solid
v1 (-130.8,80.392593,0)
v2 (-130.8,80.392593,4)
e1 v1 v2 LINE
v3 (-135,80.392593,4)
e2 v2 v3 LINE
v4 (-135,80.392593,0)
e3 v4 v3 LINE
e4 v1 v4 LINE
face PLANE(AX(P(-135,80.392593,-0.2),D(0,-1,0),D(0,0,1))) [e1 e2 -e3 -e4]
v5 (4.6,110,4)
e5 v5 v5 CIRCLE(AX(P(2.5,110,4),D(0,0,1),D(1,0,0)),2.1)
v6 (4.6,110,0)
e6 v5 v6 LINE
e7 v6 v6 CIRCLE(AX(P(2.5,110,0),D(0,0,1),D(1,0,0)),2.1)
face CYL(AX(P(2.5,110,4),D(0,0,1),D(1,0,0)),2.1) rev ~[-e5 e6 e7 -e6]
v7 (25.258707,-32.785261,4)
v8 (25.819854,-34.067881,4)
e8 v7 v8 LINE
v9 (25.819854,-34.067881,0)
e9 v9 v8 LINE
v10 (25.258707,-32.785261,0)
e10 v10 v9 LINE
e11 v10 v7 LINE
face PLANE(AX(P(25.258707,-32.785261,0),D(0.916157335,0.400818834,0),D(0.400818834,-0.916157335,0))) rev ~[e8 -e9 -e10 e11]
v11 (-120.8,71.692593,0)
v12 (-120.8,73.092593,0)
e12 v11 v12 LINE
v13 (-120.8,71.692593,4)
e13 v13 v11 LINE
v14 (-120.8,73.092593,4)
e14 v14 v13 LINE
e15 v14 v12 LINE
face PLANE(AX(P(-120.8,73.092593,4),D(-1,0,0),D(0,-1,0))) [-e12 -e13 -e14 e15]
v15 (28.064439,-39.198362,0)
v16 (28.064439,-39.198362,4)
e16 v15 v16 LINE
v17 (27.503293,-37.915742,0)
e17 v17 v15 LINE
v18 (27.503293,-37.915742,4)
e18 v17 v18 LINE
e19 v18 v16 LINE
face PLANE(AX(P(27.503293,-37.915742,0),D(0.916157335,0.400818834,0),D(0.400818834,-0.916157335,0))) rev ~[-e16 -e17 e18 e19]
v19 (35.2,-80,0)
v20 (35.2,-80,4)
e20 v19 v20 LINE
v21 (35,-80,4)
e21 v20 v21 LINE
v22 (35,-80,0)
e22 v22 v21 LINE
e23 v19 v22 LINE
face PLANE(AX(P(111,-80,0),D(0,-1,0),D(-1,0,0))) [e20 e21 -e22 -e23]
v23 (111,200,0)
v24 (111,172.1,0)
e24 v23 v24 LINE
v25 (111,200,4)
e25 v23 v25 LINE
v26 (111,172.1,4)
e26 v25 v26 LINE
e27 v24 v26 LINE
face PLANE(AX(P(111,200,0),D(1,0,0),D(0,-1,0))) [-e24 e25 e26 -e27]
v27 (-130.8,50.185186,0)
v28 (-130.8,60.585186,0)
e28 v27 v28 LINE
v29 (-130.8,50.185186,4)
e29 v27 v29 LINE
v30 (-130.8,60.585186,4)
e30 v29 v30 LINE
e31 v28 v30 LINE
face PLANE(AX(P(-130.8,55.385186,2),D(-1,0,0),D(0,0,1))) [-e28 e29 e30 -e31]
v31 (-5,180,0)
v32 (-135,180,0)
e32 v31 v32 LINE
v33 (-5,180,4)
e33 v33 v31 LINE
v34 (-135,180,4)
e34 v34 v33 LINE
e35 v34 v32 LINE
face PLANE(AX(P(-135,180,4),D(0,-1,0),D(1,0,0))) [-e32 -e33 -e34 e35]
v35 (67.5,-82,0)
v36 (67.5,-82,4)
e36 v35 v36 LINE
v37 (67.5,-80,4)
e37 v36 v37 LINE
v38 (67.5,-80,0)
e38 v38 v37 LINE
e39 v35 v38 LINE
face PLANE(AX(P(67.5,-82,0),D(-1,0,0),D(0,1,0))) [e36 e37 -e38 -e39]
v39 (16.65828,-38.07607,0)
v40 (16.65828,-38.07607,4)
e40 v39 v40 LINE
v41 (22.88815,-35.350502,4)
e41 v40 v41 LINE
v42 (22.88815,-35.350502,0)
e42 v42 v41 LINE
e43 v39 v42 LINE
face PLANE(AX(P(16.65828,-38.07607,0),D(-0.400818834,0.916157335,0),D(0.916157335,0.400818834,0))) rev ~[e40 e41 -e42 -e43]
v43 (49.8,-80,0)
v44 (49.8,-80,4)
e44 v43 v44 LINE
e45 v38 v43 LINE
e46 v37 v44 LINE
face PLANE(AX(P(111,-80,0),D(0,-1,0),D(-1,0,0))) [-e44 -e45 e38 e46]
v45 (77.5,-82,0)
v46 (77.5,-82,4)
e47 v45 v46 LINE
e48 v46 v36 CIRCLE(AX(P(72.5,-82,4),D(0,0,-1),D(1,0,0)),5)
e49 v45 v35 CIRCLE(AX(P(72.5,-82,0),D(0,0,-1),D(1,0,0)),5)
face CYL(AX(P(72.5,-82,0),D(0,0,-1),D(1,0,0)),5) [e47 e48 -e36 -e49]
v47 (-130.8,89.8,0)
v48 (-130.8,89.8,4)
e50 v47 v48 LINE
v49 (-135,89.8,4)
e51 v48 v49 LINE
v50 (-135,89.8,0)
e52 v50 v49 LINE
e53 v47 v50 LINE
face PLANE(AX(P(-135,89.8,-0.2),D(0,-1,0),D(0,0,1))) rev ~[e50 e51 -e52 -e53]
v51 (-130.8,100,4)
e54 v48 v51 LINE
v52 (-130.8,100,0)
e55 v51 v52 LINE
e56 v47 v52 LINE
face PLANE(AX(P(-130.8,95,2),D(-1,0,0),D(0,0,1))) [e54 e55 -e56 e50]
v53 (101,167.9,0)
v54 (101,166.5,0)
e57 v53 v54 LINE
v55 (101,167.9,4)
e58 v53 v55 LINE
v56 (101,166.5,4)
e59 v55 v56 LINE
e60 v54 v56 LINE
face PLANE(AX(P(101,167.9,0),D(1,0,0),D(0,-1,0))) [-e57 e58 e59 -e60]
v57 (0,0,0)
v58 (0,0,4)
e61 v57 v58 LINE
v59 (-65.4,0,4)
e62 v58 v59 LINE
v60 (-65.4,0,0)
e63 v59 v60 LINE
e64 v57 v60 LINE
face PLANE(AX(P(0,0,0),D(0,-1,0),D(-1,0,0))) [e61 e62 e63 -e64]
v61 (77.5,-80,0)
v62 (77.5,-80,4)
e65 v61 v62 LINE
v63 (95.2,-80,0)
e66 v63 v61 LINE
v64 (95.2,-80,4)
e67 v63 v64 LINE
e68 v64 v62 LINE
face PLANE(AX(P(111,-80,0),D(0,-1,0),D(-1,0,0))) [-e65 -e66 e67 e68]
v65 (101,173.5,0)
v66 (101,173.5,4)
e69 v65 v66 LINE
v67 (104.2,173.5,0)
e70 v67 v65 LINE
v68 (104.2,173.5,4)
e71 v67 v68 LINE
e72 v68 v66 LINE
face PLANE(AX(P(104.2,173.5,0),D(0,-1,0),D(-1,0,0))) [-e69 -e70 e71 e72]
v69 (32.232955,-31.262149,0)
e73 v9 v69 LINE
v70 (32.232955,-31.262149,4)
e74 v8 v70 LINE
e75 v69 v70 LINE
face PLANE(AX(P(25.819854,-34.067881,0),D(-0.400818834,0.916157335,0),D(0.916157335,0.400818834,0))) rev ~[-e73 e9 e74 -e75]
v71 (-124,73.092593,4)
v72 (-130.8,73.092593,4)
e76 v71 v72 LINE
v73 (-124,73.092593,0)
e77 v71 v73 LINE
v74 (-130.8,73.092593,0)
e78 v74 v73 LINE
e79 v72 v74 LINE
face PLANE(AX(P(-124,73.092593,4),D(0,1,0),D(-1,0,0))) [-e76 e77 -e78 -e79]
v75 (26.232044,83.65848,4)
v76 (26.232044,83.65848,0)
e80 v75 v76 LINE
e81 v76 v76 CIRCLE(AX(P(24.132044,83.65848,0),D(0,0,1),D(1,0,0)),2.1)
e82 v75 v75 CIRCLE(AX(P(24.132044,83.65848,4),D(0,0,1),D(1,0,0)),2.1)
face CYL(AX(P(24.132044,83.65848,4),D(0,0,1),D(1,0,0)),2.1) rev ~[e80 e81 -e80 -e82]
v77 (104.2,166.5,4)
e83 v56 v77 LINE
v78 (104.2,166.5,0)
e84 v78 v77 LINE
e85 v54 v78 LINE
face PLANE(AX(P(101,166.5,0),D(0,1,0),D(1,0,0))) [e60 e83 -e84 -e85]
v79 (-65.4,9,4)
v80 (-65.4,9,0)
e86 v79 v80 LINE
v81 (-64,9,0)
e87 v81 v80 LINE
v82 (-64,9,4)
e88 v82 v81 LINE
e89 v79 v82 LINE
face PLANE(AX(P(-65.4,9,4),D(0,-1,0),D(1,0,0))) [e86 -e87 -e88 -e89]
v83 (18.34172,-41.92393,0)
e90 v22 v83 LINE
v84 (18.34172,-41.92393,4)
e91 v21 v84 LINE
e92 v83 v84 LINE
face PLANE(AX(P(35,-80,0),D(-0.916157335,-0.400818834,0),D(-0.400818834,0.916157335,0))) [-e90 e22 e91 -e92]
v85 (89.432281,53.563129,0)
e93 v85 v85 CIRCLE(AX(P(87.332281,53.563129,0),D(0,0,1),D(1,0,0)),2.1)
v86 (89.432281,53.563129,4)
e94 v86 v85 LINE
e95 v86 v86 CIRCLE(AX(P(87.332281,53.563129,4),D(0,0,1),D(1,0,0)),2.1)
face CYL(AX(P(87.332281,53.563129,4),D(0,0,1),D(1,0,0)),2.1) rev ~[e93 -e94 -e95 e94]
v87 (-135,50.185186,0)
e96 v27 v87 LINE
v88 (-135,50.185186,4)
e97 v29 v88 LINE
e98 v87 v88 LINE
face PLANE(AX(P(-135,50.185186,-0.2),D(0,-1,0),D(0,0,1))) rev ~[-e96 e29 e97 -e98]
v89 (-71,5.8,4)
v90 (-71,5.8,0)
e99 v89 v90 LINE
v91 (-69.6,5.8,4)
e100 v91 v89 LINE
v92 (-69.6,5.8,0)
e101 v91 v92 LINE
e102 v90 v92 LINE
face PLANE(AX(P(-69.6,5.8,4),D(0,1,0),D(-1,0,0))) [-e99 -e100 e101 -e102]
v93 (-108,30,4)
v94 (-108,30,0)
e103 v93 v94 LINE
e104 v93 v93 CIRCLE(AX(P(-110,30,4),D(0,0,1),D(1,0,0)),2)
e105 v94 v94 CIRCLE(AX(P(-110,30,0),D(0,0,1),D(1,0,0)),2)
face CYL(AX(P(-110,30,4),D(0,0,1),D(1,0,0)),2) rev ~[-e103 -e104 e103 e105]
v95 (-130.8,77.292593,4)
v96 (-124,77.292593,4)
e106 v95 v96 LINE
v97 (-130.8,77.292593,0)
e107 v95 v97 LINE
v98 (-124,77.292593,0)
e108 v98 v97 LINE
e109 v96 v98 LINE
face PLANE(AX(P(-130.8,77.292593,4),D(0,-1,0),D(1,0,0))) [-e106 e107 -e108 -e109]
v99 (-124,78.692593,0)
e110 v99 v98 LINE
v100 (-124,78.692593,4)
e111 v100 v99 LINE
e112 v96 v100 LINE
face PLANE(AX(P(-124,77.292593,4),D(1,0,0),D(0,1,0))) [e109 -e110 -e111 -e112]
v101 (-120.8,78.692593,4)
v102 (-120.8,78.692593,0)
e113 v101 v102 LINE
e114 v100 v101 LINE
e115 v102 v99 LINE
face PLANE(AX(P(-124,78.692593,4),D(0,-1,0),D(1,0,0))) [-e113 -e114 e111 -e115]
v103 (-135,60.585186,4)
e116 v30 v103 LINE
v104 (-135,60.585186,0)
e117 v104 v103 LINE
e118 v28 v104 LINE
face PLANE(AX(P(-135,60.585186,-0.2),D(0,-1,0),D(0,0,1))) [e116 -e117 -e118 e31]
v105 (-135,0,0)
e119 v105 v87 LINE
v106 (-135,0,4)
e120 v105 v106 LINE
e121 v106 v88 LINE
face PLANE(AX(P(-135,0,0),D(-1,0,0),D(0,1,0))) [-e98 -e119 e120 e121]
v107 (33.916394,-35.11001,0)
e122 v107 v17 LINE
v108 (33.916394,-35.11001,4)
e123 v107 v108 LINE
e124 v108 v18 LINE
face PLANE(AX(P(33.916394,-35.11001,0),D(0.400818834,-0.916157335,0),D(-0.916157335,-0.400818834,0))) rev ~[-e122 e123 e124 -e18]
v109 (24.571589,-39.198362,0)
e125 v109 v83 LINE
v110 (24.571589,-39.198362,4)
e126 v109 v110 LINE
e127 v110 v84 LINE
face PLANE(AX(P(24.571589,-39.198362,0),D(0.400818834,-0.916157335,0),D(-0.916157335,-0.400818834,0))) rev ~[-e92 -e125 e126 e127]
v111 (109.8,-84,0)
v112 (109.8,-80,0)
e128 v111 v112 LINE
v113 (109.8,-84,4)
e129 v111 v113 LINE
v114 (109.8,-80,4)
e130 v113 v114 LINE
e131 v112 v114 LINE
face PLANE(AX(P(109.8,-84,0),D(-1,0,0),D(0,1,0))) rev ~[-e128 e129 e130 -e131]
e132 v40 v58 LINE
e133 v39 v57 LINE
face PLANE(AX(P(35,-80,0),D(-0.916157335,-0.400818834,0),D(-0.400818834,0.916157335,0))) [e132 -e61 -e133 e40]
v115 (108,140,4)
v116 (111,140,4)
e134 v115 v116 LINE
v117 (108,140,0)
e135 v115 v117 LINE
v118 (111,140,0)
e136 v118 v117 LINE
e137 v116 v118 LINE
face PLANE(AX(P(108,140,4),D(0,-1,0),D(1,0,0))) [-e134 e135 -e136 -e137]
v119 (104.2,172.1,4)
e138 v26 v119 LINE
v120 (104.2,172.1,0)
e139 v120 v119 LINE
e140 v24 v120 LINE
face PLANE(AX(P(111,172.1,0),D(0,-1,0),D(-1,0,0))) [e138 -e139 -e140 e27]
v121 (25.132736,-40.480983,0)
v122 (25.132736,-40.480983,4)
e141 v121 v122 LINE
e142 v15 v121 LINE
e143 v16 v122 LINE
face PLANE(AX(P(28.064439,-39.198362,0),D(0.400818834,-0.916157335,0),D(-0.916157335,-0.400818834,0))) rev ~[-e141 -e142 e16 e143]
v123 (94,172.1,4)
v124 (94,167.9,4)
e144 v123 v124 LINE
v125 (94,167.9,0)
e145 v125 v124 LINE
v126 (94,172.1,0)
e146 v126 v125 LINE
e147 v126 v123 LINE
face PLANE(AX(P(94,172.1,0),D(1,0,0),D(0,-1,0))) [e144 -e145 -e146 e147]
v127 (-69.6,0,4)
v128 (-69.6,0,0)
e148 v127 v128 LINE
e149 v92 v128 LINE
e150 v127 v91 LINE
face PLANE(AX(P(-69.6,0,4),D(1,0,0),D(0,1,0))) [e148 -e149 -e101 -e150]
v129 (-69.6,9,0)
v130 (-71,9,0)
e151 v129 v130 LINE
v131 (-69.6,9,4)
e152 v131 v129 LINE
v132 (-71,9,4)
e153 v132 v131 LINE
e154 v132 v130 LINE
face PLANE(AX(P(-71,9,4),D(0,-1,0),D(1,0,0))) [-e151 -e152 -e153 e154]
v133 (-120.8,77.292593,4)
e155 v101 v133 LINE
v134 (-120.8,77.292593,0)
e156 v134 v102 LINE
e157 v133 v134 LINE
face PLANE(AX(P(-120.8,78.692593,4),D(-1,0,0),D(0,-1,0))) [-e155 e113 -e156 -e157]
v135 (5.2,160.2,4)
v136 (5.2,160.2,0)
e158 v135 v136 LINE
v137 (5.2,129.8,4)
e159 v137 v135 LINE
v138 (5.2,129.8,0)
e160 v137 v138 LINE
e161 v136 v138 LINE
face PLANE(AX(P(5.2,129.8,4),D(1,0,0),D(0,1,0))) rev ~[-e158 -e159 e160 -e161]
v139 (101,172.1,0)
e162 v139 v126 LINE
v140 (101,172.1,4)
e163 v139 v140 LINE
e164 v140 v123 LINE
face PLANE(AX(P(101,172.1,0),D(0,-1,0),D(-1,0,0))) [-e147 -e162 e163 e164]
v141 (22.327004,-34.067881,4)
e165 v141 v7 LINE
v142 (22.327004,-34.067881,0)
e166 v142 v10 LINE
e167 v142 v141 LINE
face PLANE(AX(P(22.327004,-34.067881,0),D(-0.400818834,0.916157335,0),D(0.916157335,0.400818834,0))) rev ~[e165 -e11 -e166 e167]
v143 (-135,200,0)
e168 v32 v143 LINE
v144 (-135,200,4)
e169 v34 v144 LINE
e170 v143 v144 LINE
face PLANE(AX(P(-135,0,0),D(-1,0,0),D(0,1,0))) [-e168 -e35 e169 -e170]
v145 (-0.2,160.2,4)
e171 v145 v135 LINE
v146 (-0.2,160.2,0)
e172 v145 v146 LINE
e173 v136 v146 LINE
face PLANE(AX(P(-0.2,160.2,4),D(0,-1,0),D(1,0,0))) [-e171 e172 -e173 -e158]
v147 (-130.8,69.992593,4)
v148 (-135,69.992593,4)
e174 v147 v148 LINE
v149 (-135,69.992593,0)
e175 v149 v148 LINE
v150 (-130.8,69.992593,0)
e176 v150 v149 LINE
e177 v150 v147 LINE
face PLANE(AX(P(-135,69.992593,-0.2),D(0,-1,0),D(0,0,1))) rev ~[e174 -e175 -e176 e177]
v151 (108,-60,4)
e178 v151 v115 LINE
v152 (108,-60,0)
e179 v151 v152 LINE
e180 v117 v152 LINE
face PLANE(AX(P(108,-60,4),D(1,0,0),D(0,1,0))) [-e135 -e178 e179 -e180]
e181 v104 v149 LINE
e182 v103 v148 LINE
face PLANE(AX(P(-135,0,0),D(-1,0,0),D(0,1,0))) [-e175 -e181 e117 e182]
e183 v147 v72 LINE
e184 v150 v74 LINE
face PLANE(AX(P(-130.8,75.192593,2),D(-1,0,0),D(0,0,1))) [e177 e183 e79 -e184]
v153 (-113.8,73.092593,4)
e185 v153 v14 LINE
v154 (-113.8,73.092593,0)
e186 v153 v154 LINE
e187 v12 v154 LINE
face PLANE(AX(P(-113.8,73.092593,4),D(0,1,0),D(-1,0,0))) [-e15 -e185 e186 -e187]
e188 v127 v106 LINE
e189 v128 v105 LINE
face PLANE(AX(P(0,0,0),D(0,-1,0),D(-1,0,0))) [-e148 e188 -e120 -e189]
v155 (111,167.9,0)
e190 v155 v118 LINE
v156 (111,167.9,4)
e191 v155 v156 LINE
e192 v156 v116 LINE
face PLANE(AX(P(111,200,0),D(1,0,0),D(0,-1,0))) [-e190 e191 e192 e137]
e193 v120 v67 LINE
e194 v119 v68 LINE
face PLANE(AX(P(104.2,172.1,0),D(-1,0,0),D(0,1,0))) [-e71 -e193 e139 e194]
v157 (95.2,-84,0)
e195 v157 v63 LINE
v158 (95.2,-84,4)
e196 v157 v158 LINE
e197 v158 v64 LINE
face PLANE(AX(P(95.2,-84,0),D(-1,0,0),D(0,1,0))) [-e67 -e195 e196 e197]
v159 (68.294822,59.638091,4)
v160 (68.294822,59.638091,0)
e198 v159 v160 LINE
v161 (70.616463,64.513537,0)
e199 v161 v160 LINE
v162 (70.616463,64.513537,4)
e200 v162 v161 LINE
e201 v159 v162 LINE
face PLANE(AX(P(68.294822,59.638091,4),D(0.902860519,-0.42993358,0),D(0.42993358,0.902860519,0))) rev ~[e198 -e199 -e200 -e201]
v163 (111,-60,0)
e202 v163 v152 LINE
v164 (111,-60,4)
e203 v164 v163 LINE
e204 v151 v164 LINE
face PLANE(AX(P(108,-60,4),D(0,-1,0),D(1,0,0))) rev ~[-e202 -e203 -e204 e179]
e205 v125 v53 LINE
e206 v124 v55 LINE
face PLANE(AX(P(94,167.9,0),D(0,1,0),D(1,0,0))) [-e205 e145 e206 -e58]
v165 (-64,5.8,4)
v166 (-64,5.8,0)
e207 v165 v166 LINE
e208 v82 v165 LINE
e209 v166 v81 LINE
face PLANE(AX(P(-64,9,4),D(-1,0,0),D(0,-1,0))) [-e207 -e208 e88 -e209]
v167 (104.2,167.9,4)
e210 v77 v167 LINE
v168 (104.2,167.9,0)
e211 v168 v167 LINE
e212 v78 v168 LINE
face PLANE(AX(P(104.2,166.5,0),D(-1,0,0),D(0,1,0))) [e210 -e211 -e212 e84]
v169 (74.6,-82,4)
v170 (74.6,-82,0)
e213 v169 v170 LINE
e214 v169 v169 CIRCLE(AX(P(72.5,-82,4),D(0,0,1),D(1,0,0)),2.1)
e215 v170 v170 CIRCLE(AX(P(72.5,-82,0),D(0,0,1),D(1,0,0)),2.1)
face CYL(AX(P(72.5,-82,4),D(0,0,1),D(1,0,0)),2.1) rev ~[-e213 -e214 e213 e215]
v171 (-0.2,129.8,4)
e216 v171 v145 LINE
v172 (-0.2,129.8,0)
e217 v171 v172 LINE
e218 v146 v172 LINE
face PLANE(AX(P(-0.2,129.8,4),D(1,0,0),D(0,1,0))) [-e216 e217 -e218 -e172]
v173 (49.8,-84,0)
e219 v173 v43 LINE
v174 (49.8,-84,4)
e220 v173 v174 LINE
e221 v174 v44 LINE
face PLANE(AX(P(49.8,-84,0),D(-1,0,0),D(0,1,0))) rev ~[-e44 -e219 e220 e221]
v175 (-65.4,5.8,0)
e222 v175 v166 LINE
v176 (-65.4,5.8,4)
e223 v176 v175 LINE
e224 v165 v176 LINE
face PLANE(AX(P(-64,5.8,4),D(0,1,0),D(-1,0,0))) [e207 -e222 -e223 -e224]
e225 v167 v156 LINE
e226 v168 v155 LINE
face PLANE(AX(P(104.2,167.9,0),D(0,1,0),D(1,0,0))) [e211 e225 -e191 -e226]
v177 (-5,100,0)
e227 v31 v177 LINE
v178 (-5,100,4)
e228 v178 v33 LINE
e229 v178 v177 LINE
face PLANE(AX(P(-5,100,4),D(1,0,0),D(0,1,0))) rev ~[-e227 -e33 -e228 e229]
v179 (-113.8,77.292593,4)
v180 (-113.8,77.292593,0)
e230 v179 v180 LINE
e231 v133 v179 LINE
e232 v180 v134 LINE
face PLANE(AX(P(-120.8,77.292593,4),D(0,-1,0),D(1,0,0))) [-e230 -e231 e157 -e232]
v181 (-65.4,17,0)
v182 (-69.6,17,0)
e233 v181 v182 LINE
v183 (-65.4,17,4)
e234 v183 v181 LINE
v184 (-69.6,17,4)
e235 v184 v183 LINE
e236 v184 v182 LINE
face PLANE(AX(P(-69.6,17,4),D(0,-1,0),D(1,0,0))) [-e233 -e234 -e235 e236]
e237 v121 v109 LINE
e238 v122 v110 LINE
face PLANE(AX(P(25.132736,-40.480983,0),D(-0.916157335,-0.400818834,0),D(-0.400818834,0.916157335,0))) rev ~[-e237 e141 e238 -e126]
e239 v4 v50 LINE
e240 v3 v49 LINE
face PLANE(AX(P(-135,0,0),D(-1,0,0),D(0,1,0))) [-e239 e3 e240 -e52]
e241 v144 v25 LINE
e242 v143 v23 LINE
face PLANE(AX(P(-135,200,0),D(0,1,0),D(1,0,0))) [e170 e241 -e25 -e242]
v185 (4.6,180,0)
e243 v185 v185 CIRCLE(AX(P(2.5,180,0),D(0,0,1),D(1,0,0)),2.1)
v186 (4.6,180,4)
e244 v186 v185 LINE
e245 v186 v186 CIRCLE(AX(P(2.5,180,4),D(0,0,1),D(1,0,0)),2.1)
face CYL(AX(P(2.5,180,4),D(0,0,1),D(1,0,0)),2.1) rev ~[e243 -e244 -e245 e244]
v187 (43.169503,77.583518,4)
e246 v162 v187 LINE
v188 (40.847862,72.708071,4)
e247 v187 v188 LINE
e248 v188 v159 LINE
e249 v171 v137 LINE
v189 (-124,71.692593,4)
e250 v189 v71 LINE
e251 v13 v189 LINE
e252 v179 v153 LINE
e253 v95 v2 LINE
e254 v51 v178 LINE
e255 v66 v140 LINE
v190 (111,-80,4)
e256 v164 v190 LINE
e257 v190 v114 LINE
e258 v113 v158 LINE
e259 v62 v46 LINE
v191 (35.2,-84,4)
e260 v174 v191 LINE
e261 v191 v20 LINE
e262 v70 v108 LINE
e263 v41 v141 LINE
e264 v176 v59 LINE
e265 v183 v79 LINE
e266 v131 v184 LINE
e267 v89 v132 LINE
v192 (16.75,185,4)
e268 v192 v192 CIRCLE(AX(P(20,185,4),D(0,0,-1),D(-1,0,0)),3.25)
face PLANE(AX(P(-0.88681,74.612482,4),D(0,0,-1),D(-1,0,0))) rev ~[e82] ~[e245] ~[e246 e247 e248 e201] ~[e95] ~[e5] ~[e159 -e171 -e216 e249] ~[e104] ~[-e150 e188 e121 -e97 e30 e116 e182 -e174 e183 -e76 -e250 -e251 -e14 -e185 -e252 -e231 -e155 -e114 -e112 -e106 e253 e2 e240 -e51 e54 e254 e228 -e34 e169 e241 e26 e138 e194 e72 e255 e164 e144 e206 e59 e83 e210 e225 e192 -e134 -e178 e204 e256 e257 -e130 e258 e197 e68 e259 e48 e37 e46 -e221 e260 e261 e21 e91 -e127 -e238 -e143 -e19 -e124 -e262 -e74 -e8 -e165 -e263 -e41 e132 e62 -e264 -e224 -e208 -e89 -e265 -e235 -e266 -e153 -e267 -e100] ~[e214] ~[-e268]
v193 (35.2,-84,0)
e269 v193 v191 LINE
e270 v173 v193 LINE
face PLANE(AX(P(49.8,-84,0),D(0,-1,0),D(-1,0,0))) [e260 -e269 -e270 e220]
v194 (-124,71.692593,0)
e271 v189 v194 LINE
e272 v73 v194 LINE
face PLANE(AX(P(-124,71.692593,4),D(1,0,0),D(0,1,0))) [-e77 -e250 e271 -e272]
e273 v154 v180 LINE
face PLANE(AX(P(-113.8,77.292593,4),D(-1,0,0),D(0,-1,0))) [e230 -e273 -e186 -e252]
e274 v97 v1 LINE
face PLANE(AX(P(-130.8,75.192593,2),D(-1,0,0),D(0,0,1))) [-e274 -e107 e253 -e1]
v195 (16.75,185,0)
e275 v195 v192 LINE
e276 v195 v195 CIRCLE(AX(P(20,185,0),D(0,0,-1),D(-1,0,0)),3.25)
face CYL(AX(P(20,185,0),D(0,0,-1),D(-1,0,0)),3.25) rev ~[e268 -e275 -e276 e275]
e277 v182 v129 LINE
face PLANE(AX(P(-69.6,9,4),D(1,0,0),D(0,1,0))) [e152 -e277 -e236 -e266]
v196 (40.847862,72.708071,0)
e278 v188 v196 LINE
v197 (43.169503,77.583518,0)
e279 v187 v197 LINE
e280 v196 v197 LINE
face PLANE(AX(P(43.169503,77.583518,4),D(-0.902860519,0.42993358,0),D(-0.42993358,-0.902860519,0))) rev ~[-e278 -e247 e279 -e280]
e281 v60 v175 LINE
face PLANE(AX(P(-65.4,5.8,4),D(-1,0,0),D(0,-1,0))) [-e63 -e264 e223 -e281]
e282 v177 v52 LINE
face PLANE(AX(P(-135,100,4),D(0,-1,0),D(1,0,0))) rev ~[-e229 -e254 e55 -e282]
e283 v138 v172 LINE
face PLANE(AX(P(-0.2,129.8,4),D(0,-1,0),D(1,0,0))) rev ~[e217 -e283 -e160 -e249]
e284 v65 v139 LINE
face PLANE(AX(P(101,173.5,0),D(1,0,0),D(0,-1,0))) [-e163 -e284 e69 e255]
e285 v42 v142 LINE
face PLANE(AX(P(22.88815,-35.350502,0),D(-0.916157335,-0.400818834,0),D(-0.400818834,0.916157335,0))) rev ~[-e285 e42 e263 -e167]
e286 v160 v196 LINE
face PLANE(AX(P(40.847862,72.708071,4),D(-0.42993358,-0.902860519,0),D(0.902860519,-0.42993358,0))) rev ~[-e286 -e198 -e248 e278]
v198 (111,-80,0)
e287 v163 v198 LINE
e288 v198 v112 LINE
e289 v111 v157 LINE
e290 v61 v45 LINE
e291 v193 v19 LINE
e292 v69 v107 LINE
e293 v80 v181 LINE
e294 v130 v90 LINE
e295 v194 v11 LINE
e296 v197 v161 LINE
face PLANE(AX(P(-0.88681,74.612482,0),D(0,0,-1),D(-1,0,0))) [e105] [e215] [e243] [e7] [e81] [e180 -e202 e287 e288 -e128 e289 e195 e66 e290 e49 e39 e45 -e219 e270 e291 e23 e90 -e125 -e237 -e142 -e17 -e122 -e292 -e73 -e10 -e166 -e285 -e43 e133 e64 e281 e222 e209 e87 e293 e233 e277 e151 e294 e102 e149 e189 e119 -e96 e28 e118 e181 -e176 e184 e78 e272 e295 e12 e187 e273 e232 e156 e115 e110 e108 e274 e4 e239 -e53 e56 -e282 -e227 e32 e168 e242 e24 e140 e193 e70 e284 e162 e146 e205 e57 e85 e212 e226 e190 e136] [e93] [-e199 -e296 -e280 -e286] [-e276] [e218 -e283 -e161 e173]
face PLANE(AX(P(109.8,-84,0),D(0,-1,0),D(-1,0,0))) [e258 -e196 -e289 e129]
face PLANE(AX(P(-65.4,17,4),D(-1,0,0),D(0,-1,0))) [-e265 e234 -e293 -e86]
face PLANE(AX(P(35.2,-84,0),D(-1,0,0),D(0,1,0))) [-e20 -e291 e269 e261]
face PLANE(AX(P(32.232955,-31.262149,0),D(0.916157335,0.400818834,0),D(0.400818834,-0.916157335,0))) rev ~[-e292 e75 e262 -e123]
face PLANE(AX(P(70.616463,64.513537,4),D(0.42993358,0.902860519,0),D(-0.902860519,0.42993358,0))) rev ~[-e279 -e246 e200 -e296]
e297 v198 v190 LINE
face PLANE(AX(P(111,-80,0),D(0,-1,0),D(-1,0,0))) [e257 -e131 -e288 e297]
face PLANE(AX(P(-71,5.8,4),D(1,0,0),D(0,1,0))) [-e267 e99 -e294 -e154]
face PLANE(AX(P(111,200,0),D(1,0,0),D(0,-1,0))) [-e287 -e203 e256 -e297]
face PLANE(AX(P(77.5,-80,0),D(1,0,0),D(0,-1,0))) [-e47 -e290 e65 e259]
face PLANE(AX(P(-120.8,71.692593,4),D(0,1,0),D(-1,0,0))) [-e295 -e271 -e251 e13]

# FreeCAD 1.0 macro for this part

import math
import FreeCAD as App
import Part
import Sketcher
from FreeCAD import Vector
Q = App.Units.Quantity

doc = App.newDocument("Part")
body = doc.addObject("PartDesign::Body", "Body")

# Sketch on XY plane
sketch1 = body.newObject("Sketcher::SketchObject", "Sketch")
sketch1.AttachmentSupport = (doc.getObject("XY_Plane"), [""])
sketch1.MapMode = "FlatFace"
sketch1.addGeometry([
    Part.LineSegment(Vector(-135, 0, 0), Vector(0, 0, 0)),  # 0
    Part.LineSegment(Vector(0, 0, 0), Vector(35, -80, 0)),  # 1
    Part.LineSegment(Vector(35, -80, 0), Vector(111, -80, 0)),  # 2
    Part.LineSegment(Vector(111, -80, 0), Vector(111, 200, 0)),  # 3
    Part.LineSegment(Vector(111, 200, 0), Vector(-135, 200, 0)),  # 4
    Part.LineSegment(Vector(-135, 200, 0), Vector(-135, 0, 0)),  # 5
], False)
sketch1.addConstraint([
    Sketcher.Constraint("Coincident", 0, 2, 1, 1),
    Sketcher.Constraint("Coincident", 1, 2, 2, 1),
    Sketcher.Constraint("Coincident", 2, 2, 3, 1),
    Sketcher.Constraint("Coincident", 3, 2, 4, 1),
    Sketcher.Constraint("Coincident", 4, 2, 5, 1),
    Sketcher.Constraint("Coincident", 5, 2, 0, 1),
    Sketcher.Constraint("Horizontal", 0),
    Sketcher.Constraint("Horizontal", 2),
    Sketcher.Constraint("Vertical", 3),
    Sketcher.Constraint("Horizontal", 4),
    Sketcher.Constraint("Vertical", 5),
    Sketcher.Constraint("Coincident", 0, 2, -1, 1),
    Sketcher.Constraint("DistanceX", 0, 1, 0, 2, Q("135 mm")),
    Sketcher.Constraint("DistanceX", 2, 1, 2, 2, Q("76 mm")),
    Sketcher.Constraint("DistanceX", 4, 2, 4, 1, Q("246 mm")),
    Sketcher.Constraint("DistanceY", 3, 1, 3, 2, Q("280 mm")),
    Sketcher.Constraint("DistanceY", 5, 2, 5, 1, Q("200 mm")),
])
pad1 = body.newObject("PartDesign::Pad", "Pad")
pad1.Profile = sketch1
pad1.Length = 4

# Sketch on XY plane
sketch2 = body.newObject("Sketcher::SketchObject", "Sketch001")
sketch2.AttachmentSupport = (doc.getObject("XY_Plane"), [""])
sketch2.MapMode = "FlatFace"
sketch2.AttachmentOffset = App.Placement(Vector(0, 0, 4), App.Rotation())
sketch2.addGeometry([
    Part.LineSegment(Vector(-135, 180, 0), Vector(-135, 100, 0)),
    Part.LineSegment(Vector(-135, 100, 0), Vector(-5, 100, 0)),
    Part.LineSegment(Vector(-5, 100, 0), Vector(-5, 180, 0)),
    Part.LineSegment(Vector(-5, 180, 0), Vector(-135, 180, 0)),
], False)
sketch2.addConstraint([
    Sketcher.Constraint("Coincident", 0, 2, 1, 1),
    Sketcher.Constraint("Coincident", 1, 2, 2, 1),
    Sketcher.Constraint("Coincident", 2, 2, 3, 1),
    Sketcher.Constraint("Coincident", 3, 2, 0, 1),
    Sketcher.Constraint("Vertical", 0),
    Sketcher.Constraint("Horizontal", 1),
    Sketcher.Constraint("Vertical", 2),
    Sketcher.Constraint("Horizontal", 3),
    Sketcher.Constraint("DistanceX", 1, 1, 1, 2, Q("130 mm")),
    Sketcher.Constraint("DistanceY", 0, 2, 0, 1, Q("80 mm")),
    Sketcher.Constraint("DistanceX", 0, 2, -1, 1, Q("135 mm")),
    Sketcher.Constraint("DistanceY", -1, 1, 0, 2, Q("100 mm")),
])
pocket1 = body.newObject("PartDesign::Pocket", "Pocket")
pocket1.Profile = sketch2
pocket1.Type = "ThroughAll"

# Sketch on XY plane
sketch3 = body.newObject("Sketcher::SketchObject", "Sketch002")
sketch3.AttachmentSupport = (doc.getObject("XY_Plane"), [""])
sketch3.MapMode = "FlatFace"
sketch3.AttachmentOffset = App.Placement(Vector(0, 0, 4), App.Rotation())
sketch3.addGeometry([
    Part.LineSegment(Vector(108, 140, 0), Vector(108, -60, 0)),
    Part.LineSegment(Vector(108, -60, 0), Vector(111, -60, 0)),
    Part.LineSegment(Vector(111, -60, 0), Vector(111, 140, 0)),
    Part.LineSegment(Vector(111, 140, 0), Vector(108, 140, 0)),
], False)
sketch3.addConstraint([
    Sketcher.Constraint("Coincident", 0, 2, 1, 1),
    Sketcher.Constraint("Coincident", 1, 2, 2, 1),
    Sketcher.Constraint("Coincident", 2, 2, 3, 1),
    Sketcher.Constraint("Coincident", 3, 2, 0, 1),
    Sketcher.Constraint("Vertical", 0),
    Sketcher.Constraint("Horizontal", 1),
    Sketcher.Constraint("Vertical", 2),
    Sketcher.Constraint("Horizontal", 3),
    Sketcher.Constraint("DistanceX", 1, 1, 1, 2, Q("3 mm")),
    Sketcher.Constraint("DistanceY", 0, 2, 0, 1, Q("200 mm")),
    Sketcher.Constraint("DistanceX", -1, 1, 0, 2, Q("108 mm")),
    Sketcher.Constraint("DistanceY", 0, 2, -1, 1, Q("60 mm")),
])
pocket2 = body.newObject("PartDesign::Pocket", "Pocket001")
pocket2.Profile = sketch3
pocket2.Type = "ThroughAll"

# Sketch on XY plane
sketch4 = body.newObject("Sketcher::SketchObject", "Sketch003")
sketch4.AttachmentSupport = (doc.getObject("XY_Plane"), [""])
sketch4.MapMode = "FlatFace"
sketch4.AttachmentOffset = App.Placement(Vector(0, 0, 4), App.Rotation())
sketch4.addGeometry([
    Part.Circle(Vector(24.132044, 83.65848, 0), Vector(0, 0, 1), 2.1),
    Part.Circle(Vector(87.332281, 53.563129, 0), Vector(0, 0, 1), 2.1),
    Part.Circle(Vector(2.5, 110, 0), Vector(0, 0, 1), 2.1),
    Part.Circle(Vector(2.5, 180, 0), Vector(0, 0, 1), 2.1),
], False)
sketch4.addConstraint([
    Sketcher.Constraint("Equal", 0, 1),
    Sketcher.Constraint("Equal", 1, 2),
    Sketcher.Constraint("Equal", 2, 3),
    Sketcher.Constraint("Vertical", 2, 3, 3, 3),
    Sketcher.Constraint("Diameter", 0, Q("4.2 mm")),
    Sketcher.Constraint("DistanceY", -1, 1, 2, 3, Q("110 mm")),
    Sketcher.Constraint("DistanceY", -1, 1, 3, 3, Q("180 mm")),
    Sketcher.Constraint("DistanceX", -1, 1, 2, 3, Q("2.5 mm")),
    Sketcher.Constraint("DistanceY", -1, 1, 0, 3, Q("83.65848 mm")),
    Sketcher.Constraint("DistanceX", -1, 1, 1, 3, Q("87.332281 mm")),
    Sketcher.Constraint("DistanceY", -1, 1, 1, 3, Q("53.563129 mm")),
    Sketcher.Constraint("DistanceX", -1, 1, 0, 3, Q("24.132044 mm")),
])
pocket3 = body.newObject("PartDesign::Pocket", "Pocket002")
pocket3.Profile = sketch4
pocket3.Type = "ThroughAll"

# Sketch on XY plane
sketch5 = body.newObject("Sketcher::SketchObject", "Sketch004")
sketch5.AttachmentSupport = (doc.getObject("XY_Plane"), [""])
sketch5.MapMode = "FlatFace"
sketch5.AttachmentOffset = App.Placement(Vector(0, 0, 4), App.Rotation())
sketch5.addGeometry(Part.Circle(Vector(-110, 30, 0), Vector(0, 0, 1), 2), False)
sketch5.addConstraint([
    Sketcher.Constraint("Diameter", 0, Q("4 mm")),
    Sketcher.Constraint("DistanceX", 0, 3, -1, 1, Q("110 mm")),
    Sketcher.Constraint("DistanceY", -1, 1, 0, 3, Q("30 mm")),
])
pocket4 = body.newObject("PartDesign::Pocket", "Pocket003")
pocket4.Profile = sketch5
pocket4.Type = "ThroughAll"

# Sketch on XY plane
sketch6 = body.newObject("Sketcher::SketchObject", "Sketch005")
sketch6.AttachmentSupport = (doc.getObject("XY_Plane"), [""])
sketch6.MapMode = "FlatFace"
sketch6.addGeometry(Part.Circle(Vector(20, 185, 0), Vector(0, 0, 1), 3.25), False)
sketch6.addConstraint([
    Sketcher.Constraint("Diameter", 0, Q("6.5 mm")),
    Sketcher.Constraint("DistanceX", -1, 1, 0, 3, Q("20 mm")),
    Sketcher.Constraint("DistanceY", -1, 1, 0, 3, Q("185 mm")),
])
pocket5 = body.newObject("PartDesign::Pocket", "Pocket004")
pocket5.Profile = sketch6
pocket5.Type = "ThroughAll"
pocket5.Reversed = True

# Sketch on XY plane
sketch7 = body.newObject("Sketcher::SketchObject", "Sketch006")
sketch7.AttachmentSupport = (doc.getObject("XY_Plane"), [""])
sketch7.MapMode = "FlatFace"
sketch7.AttachmentOffset = App.Placement(Vector(0, 0, 4), App.Rotation())
sketch7.addGeometry([
    Part.LineSegment(Vector(-0.2, 160.2, 0), Vector(-0.2, 129.8, 0)),  # 0
    Part.LineSegment(Vector(-0.2, 129.8, 0), Vector(5.2, 129.8, 0)),  # 1
    Part.LineSegment(Vector(5.2, 129.8, 0), Vector(5.2, 160.2, 0)),  # 2
    Part.LineSegment(Vector(5.2, 160.2, 0), Vector(-0.2, 160.2, 0)),  # 3
    Part.LineSegment(Vector(68.294822, 59.638091, 0), Vector(70.616463, 64.513537, 0)),  # 4
    Part.LineSegment(Vector(70.616463, 64.513537, 0), Vector(43.169503, 77.583518, 0)),  # 5
    Part.LineSegment(Vector(43.169503, 77.583518, 0), Vector(40.847862, 72.708071, 0)),  # 6
    Part.LineSegment(Vector(40.847862, 72.708071, 0), Vector(68.294822, 59.638091, 0)),  # 7
], False)
sketch7.addConstraint([
    Sketcher.Constraint("Coincident", 0, 2, 1, 1),
    Sketcher.Constraint("Coincident", 1, 2, 2, 1),
    Sketcher.Constraint("Coincident", 2, 2, 3, 1),
    Sketcher.Constraint("Coincident", 3, 2, 0, 1),
    Sketcher.Constraint("Coincident", 4, 2, 5, 1),
    Sketcher.Constraint("Coincident", 5, 2, 6, 1),
    Sketcher.Constraint("Coincident", 6, 2, 7, 1),
    Sketcher.Constraint("Coincident", 7, 2, 4, 1),
    Sketcher.Constraint("Vertical", 0),
    Sketcher.Constraint("Horizontal", 1),
    Sketcher.Constraint("Vertical", 2),
    Sketcher.Constraint("Horizontal", 3),
    Sketcher.Constraint("Perpendicular", 4, 5),
    Sketcher.Constraint("Perpendicular", 5, 6),
    Sketcher.Constraint("Perpendicular", 6, 7),
    Sketcher.Constraint("DistanceX", 1, 1, 1, 2, Q("5.4 mm")),
    Sketcher.Constraint("DistanceY", 0, 2, 0, 1, Q("30.4 mm")),
    Sketcher.Constraint("Distance", 4, Q("5.4 mm")),
    Sketcher.Constraint("Distance", 5, Q("30.4 mm")),
    Sketcher.Constraint("DistanceX", 0, 2, -1, 1, Q("0.2 mm")),
    Sketcher.Constraint("DistanceY", -1, 1, 0, 2, Q("129.8 mm")),
    Sketcher.Constraint("DistanceX", 6, 2, 4, 2, Q("29.768601 mm")),
    Sketcher.Constraint("DistanceY", -1, 1, 5, 2, Q("77.583518 mm")),
    Sketcher.Constraint("DistanceX", -1, 1, 6, 2, Q("40.847862 mm")),
])
pocket6 = body.newObject("PartDesign::Pocket", "Pocket005")
pocket6.Profile = sketch7
pocket6.Type = "ThroughAll"

# Sketch on YZ plane
sketch8 = body.newObject("Sketcher::SketchObject", "Sketch007")
sketch8.AttachmentSupport = (doc.getObject("YZ_Plane"), [""])
sketch8.MapMode = "FlatFace"
sketch8.AttachmentOffset = App.Placement(Vector(0, 0, -135), App.Rotation())
sketch8.addGeometry([
    Part.LineSegment(Vector(100.2, -0.2, 0), Vector(89.8, -0.2, 0)),  # 0
    Part.LineSegment(Vector(89.8, -0.2, 0), Vector(89.8, 4.2, 0)),  # 1
    Part.LineSegment(Vector(89.8, 4.2, 0), Vector(100.2, 4.2, 0)),  # 2
    Part.LineSegment(Vector(100.2, 4.2, 0), Vector(100.2, -0.2, 0)),  # 3
    Part.LineSegment(Vector(60.585186, -0.2, 0), Vector(50.185186, -0.2, 0)),  # 4
    Part.LineSegment(Vector(50.185186, -0.2, 0), Vector(50.185186, 4.2, 0)),  # 5
    Part.LineSegment(Vector(50.185186, 4.2, 0), Vector(60.585186, 4.2, 0)),  # 6
    Part.LineSegment(Vector(60.585186, 4.2, 0), Vector(60.585186, -0.2, 0)),  # 7
    Part.LineSegment(Vector(80.392593, -0.2, 0), Vector(69.992593, -0.2, 0)),  # 8
    Part.LineSegment(Vector(69.992593, -0.2, 0), Vector(69.992593, 4.2, 0)),  # 9
    Part.LineSegment(Vector(69.992593, 4.2, 0), Vector(80.392593, 4.2, 0)),  # 10
    Part.LineSegment(Vector(80.392593, 4.2, 0), Vector(80.392593, -0.2, 0)),  # 11
], False)
sketch8.addConstraint([
    Sketcher.Constraint("Coincident", 0, 2, 1, 1),
    Sketcher.Constraint("Coincident", 1, 2, 2, 1),
    Sketcher.Constraint("Coincident", 2, 2, 3, 1),
    Sketcher.Constraint("Coincident", 3, 2, 0, 1),
    Sketcher.Constraint("Coincident", 4, 2, 5, 1),
    Sketcher.Constraint("Coincident", 5, 2, 6, 1),
    Sketcher.Constraint("Coincident", 6, 2, 7, 1),
    Sketcher.Constraint("Coincident", 7, 2, 4, 1),
    Sketcher.Constraint("Coincident", 8, 2, 9, 1),
    Sketcher.Constraint("Coincident", 9, 2, 10, 1),
    Sketcher.Constraint("Coincident", 10, 2, 11, 1),
    Sketcher.Constraint("Coincident", 11, 2, 8, 1),
    Sketcher.Constraint("Horizontal", 0),
    Sketcher.Constraint("Vertical", 1),
    Sketcher.Constraint("Horizontal", 2),
    Sketcher.Constraint("Vertical", 3),
    Sketcher.Constraint("Horizontal", 4),
    Sketcher.Constraint("Vertical", 5),
    Sketcher.Constraint("Horizontal", 6),
    Sketcher.Constraint("Vertical", 7),
    Sketcher.Constraint("Horizontal", 8),
    Sketcher.Constraint("Vertical", 9),
    Sketcher.Constraint("Horizontal", 10),
    Sketcher.Constraint("Vertical", 11),
    Sketcher.Constraint("Horizontal", 3, 2, 4, 2),
    Sketcher.Constraint("Horizontal", 2, 2, 5, 2),
    Sketcher.Constraint("Horizontal", 7, 2, 8, 2),
    Sketcher.Constraint("Horizontal", 6, 2, 9, 2),
    Sketcher.Constraint("Equal", 2, 4),
    Sketcher.Constraint("Equal", 6, 8),
    Sketcher.Constraint("DistanceX", 0, 2, 0, 1, Q("10.4 mm")),
    Sketcher.Constraint("DistanceY", 1, 1, 1, 2, Q("4.4 mm")),
    Sketcher.Constraint("DistanceX", -1, 1, 0, 2, Q("89.8 mm")),
    Sketcher.Constraint("DistanceY", 0, 2, -1, 1, Q("0.2 mm")),
    Sketcher.Constraint("DistanceX", -1, 1, 4, 2, Q("50.185186 mm")),
    Sketcher.Constraint("DistanceX", -1, 1, 8, 2, Q("69.992593 mm")),
])
pocket7 = body.newObject("PartDesign::Pocket", "Pocket006")
pocket7.Profile = sketch8
pocket7.Length = 4.2
pocket7.Reversed = True

# Sketch on XY plane
sketch9 = body.newObject("Sketcher::SketchObject", "Sketch008")
sketch9.AttachmentSupport = (doc.getObject("XY_Plane"), [""])
sketch9.MapMode = "FlatFace"
sketch9.AttachmentOffset = App.Placement(Vector(0, 0, 4), App.Rotation())
sketch9.addGeometry([
    Part.LineSegment(Vector(-124, 77.292593, 0), Vector(-130.8, 77.292593, 0)),  # 0
    Part.LineSegment(Vector(-130.8, 77.292593, 0), Vector(-130.8, 73.092593, 0)),  # 1
    Part.LineSegment(Vector(-130.8, 73.092593, 0), Vector(-124, 73.092593, 0)),  # 2
    Part.LineSegment(Vector(-124, 73.092593, 0), Vector(-124, 71.692593, 0)),  # 3
    Part.LineSegment(Vector(-124, 71.692593, 0), Vector(-120.8, 71.692593, 0)),  # 4
    Part.LineSegment(Vector(-120.8, 71.692593, 0), Vector(-120.8, 73.092593, 0)),  # 5
    Part.LineSegment(Vector(-120.8, 73.092593, 0), Vector(-113.8, 73.092593, 0)),  # 6
    Part.LineSegment(Vector(-113.8, 73.092593, 0), Vector(-113.8, 77.292593, 0)),  # 7
    Part.LineSegment(Vector(-113.8, 77.292593, 0), Vector(-120.8, 77.292593, 0)),  # 8
    Part.LineSegment(Vector(-120.8, 77.292593, 0), Vector(-120.8, 78.692593, 0)),  # 9
    Part.LineSegment(Vector(-120.8, 78.692593, 0), Vector(-124, 78.692593, 0)),  # 10
    Part.LineSegment(Vector(-124, 78.692593, 0), Vector(-124, 77.292593, 0)),  # 11
], False)
sketch9.addConstraint([
    Sketcher.Constraint("Coincident", 0, 2, 1, 1),
    Sketcher.Constraint("Coincident", 1, 2, 2, 1),
    Sketcher.Constraint("Coincident", 2, 2, 3, 1),
    Sketcher.Constraint("Coincident", 3, 2, 4, 1),
    Sketcher.Constraint("Coincident", 4, 2, 5, 1),
    Sketcher.Constraint("Coincident", 5, 2, 6, 1),
    Sketcher.Constraint("Coincident", 6, 2, 7, 1),
    Sketcher.Constraint("Coincident", 7, 2, 8, 1),
    Sketcher.Constraint("Coincident", 8, 2, 9, 1),
    Sketcher.Constraint("Coincident", 9, 2, 10, 1),
    Sketcher.Constraint("Coincident", 10, 2, 11, 1),
    Sketcher.Constraint("Coincident", 11, 2, 0, 1),
    Sketcher.Constraint("Horizontal", 0),
    Sketcher.Constraint("Vertical", 1),
    Sketcher.Constraint("Horizontal", 2),
    Sketcher.Constraint("Vertical", 3),
    Sketcher.Constraint("Horizontal", 4),
    Sketcher.Constraint("Vertical", 5),
    Sketcher.Constraint("Horizontal", 6),
    Sketcher.Constraint("Vertical", 7),
    Sketcher.Constraint("Horizontal", 8),
    Sketcher.Constraint("Vertical", 9),
    Sketcher.Constraint("Horizontal", 10),
    Sketcher.Constraint("Vertical", 11),
    Sketcher.Constraint("Horizontal", 2, 2, 5, 2),
    Sketcher.Constraint("Horizontal", 0, 2, 7, 2),
    Sketcher.Constraint("Vertical", 5, 2, 8, 2),
    Sketcher.Constraint("Vertical", 3, 2, 10, 2),
    Sketcher.Constraint("Equal", 5, 9),
    Sketcher.Constraint("DistanceX", 6, 1, 6, 2, Q("7 mm")),
    Sketcher.Constraint("DistanceX", 0, 2, 0, 1, Q("6.8 mm")),
    Sketcher.Constraint("DistanceX", 4, 1, 4, 2, Q("3.2 mm")),
    Sketcher.Constraint("DistanceY", 1, 2, 1, 1, Q("4.2 mm")),
    Sketcher.Constraint("DistanceY", 3, 2, 3, 1, Q("1.4 mm")),
    Sketcher.Constraint("DistanceX", 2, 2, -1, 1, Q("124 mm")),
    Sketcher.Constraint("DistanceY", -1, 1, 0, 2, Q("77.292593 mm")),
])
pocket8 = body.newObject("PartDesign::Pocket", "Pocket007")
pocket8.Profile = sketch9
pocket8.Type = "ThroughAll"

# Sketch on XY plane
sketch10 = body.newObject("Sketcher::SketchObject", "Sketch009")
sketch10.AttachmentSupport = (doc.getObject("XY_Plane"), [""])
sketch10.MapMode = "FlatFace"
sketch10.addGeometry([
    Part.LineSegment(Vector(49.8, -80, 0), Vector(49.8, -84, 0)),  # 0
    Part.LineSegment(Vector(49.8, -84, 0), Vector(35.2, -84, 0)),  # 1
    Part.LineSegment(Vector(35.2, -84, 0), Vector(35.2, -80, 0)),  # 2
    Part.LineSegment(Vector(35.2, -80, 0), Vector(49.8, -80, 0)),  # 3
    Part.LineSegment(Vector(109.8, -80, 0), Vector(109.8, -84, 0)),  # 4
    Part.LineSegment(Vector(109.8, -84, 0), Vector(95.2, -84, 0)),  # 5
    Part.LineSegment(Vector(95.2, -84, 0), Vector(95.2, -80, 0)),  # 6
    Part.LineSegment(Vector(95.2, -80, 0), Vector(109.8, -80, 0)),  # 7
    Part.LineSegment(Vector(67.5, -82, 0), Vector(67.5, -80, 0)),  # 8
    Part.LineSegment(Vector(67.5, -80, 0), Vector(77.5, -80, 0)),  # 9
    Part.LineSegment(Vector(77.5, -80, 0), Vector(77.5, -82, 0)),  # 10
    Part.ArcOfCircle(Part.Circle(Vector(72.5, -82, 0), Vector(0, 0, 1), 5), math.radians(180), math.radians(360)),  # 11
], False)
sketch10.addConstraint([
    Sketcher.Constraint("Coincident", 0, 2, 1, 1),
    Sketcher.Constraint("Coincident", 1, 2, 2, 1),
    Sketcher.Constraint("Coincident", 2, 2, 3, 1),
    Sketcher.Constraint("Coincident", 3, 2, 0, 1),
    Sketcher.Constraint("Coincident", 4, 2, 5, 1),
    Sketcher.Constraint("Coincident", 5, 2, 6, 1),
    Sketcher.Constraint("Coincident", 6, 2, 7, 1),
    Sketcher.Constraint("Coincident", 7, 2, 4, 1),
    Sketcher.Constraint("Coincident", 8, 2, 9, 1),
    Sketcher.Constraint("Coincident", 9, 2, 10, 1),
    Sketcher.Constraint("Tangent", 10, 2, 11, 2),
    Sketcher.Constraint("Tangent", 11, 1, 8, 1),
    Sketcher.Constraint("Vertical", 0),
    Sketcher.Constraint("Horizontal", 1),
    Sketcher.Constraint("Vertical", 2),
    Sketcher.Constraint("Horizontal", 3),
    Sketcher.Constraint("Vertical", 4),
    Sketcher.Constraint("Horizontal", 5),
    Sketcher.Constraint("Vertical", 6),
    Sketcher.Constraint("Horizontal", 7),
    Sketcher.Constraint("Vertical", 8),
    Sketcher.Constraint("Horizontal", 9),
    Sketcher.Constraint("Vertical", 10),
    Sketcher.Constraint("Horizontal", 1, 2, 4, 2),
    Sketcher.Constraint("Horizontal", 3, 2, 6, 2),
    Sketcher.Constraint("Horizontal", 7, 2, 8, 2),
    Sketcher.Constraint("Equal", 3, 5),
    Sketcher.Constraint("Radius", 11, Q("5 mm")),
    Sketcher.Constraint("DistanceY", 0, 2, 0, 1, Q("4 mm")),
    Sketcher.Constraint("DistanceY", 8, 1, 8, 2, Q("2 mm")),
    Sketcher.Constraint("DistanceX", 1, 2, 1, 1, Q("14.6 mm")),
    Sketcher.Constraint("DistanceY", 11, 3, -1, 1, Q("82 mm")),
    Sketcher.Constraint("DistanceX", 0, 2, 4, 2, Q("60 mm")),
    Sketcher.Constraint("DistanceX", -1, 1, 11, 3, Q("72.5 mm")),
    Sketcher.Constraint("DistanceX", -1, 1, 0, 2, Q("49.8 mm")),
])
pad2 = body.newObject("PartDesign::Pad", "Pad001")
pad2.Profile = sketch10
pad2.Length = 4

# Sketch on XY plane
sketch11 = body.newObject("Sketcher::SketchObject", "Sketch010")
sketch11.AttachmentSupport = (doc.getObject("XY_Plane"), [""])
sketch11.MapMode = "FlatFace"
sketch11.addGeometry([
    Part.LineSegment(Vector(18.34172, -41.92393, 0), Vector(16.65828, -38.07607, 0)),  # 0
    Part.LineSegment(Vector(16.65828, -38.07607, 0), Vector(22.88815, -35.350502, 0)),  # 1
    Part.LineSegment(Vector(22.88815, -35.350502, 0), Vector(22.327004, -34.067881, 0)),  # 2
    Part.LineSegment(Vector(22.327004, -34.067881, 0), Vector(25.258707, -32.785261, 0)),  # 3
    Part.LineSegment(Vector(25.258707, -32.785261, 0), Vector(25.819854, -34.067881, 0)),  # 4
    Part.LineSegment(Vector(25.819854, -34.067881, 0), Vector(32.232955, -31.262149, 0)),  # 5
    Part.LineSegment(Vector(32.232955, -31.262149, 0), Vector(33.916394, -35.11001, 0)),  # 6
    Part.LineSegment(Vector(33.916394, -35.11001, 0), Vector(27.503293, -37.915742, 0)),  # 7
    Part.LineSegment(Vector(27.503293, -37.915742, 0), Vector(28.064439, -39.198362, 0)),  # 8
    Part.LineSegment(Vector(28.064439, -39.198362, 0), Vector(25.132736, -40.480983, 0)),  # 9
    Part.LineSegment(Vector(25.132736, -40.480983, 0), Vector(24.571589, -39.198362, 0)),  # 10
    Part.LineSegment(Vector(24.571589, -39.198362, 0), Vector(18.34172, -41.92393, 0)),  # 11
], False)
sketch11.addConstraint([
    Sketcher.Constraint("Coincident", 0, 2, 1, 1),
    Sketcher.Constraint("Coincident", 1, 2, 2, 1),
    Sketcher.Constraint("Coincident", 2, 2, 3, 1),
    Sketcher.Constraint("Coincident", 3, 2, 4, 1),
    Sketcher.Constraint("Coincident", 4, 2, 5, 1),
    Sketcher.Constraint("Coincident", 5, 2, 6, 1),
    Sketcher.Constraint("Coincident", 6, 2, 7, 1),
    Sketcher.Constraint("Coincident", 7, 2, 8, 1),
    Sketcher.Constraint("Coincident", 8, 2, 9, 1),
    Sketcher.Constraint("Coincident", 9, 2, 10, 1),
    Sketcher.Constraint("Coincident", 10, 2, 11, 1),
    Sketcher.Constraint("Coincident", 11, 2, 0, 1),
    Sketcher.Constraint("Perpendicular", 0, 1),
    Sketcher.Constraint("Perpendicular", 1, 2),
    Sketcher.Constraint("Perpendicular", 2, 3),
    Sketcher.Constraint("Perpendicular", 3, 4),
    Sketcher.Constraint("Perpendicular", 4, 5),
    Sketcher.Constraint("Perpendicular", 5, 6),
    Sketcher.Constraint("Perpendicular", 6, 7),
    Sketcher.Constraint("Perpendicular", 7, 8),
    Sketcher.Constraint("Perpendicular", 8, 9),
    Sketcher.Constraint("Perpendicular", 9, 10),
    Sketcher.Constraint("Perpendicular", 10, 11),
    Sketcher.Constraint("Horizontal", 2, 2, 4, 2),
    Sketcher.Constraint("Horizontal", 8, 2, 10, 2),
    Sketcher.Constraint("Equal", 2, 4),
    Sketcher.Constraint("Equal", 0, 6),
    Sketcher.Constraint("Equal", 5, 7),
    Sketcher.Constraint("Equal", 4, 8),
    Sketcher.Constraint("Distance", 5, Q("7 mm")),
    Sketcher.Constraint("Distance", 0, Q("4.2 mm")),
    Sketcher.Constraint("Distance", 1, Q("6.8 mm")),
    Sketcher.Constraint("Distance", 2, Q("1.4 mm")),
    Sketcher.Constraint("Distance", 3, Q("3.2 mm")),
    Sketcher.Constraint("DistanceY", 1, 2, -1, 1, Q("35.350502 mm")),
    Sketcher.Constraint("DistanceX", -1, 1, 0, 2, Q("16.65828 mm")),
])
pocket9 = body.newObject("PartDesign::Pocket", "Pocket008")
pocket9.Profile = sketch11
pocket9.Type = "ThroughAll"
pocket9.Reversed = True

# Sketch on XY plane
sketch12 = body.newObject("Sketcher::SketchObject", "Sketch011")
sketch12.AttachmentSupport = (doc.getObject("XY_Plane"), [""])
sketch12.MapMode = "FlatFace"
sketch12.addGeometry([
    Part.LineSegment(Vector(104.2, 173.5, 0), Vector(104.2, 172.1, 0)),  # 0
    Part.LineSegment(Vector(104.2, 172.1, 0), Vector(111, 172.1, 0)),  # 1
    Part.LineSegment(Vector(111, 172.1, 0), Vector(111, 167.9, 0)),  # 2
    Part.LineSegment(Vector(111, 167.9, 0), Vector(104.2, 167.9, 0)),  # 3
    Part.LineSegment(Vector(104.2, 167.9, 0), Vector(104.2, 166.5, 0)),  # 4
    Part.LineSegment(Vector(104.2, 166.5, 0), Vector(101, 166.5, 0)),  # 5
    Part.LineSegment(Vector(101, 166.5, 0), Vector(101, 167.9, 0)),  # 6
    Part.LineSegment(Vector(101, 167.9, 0), Vector(94, 167.9, 0)),  # 7
    Part.LineSegment(Vector(94, 167.9, 0), Vector(94, 172.1, 0)),  # 8
    Part.LineSegment(Vector(94, 172.1, 0), Vector(101, 172.1, 0)),  # 9
    Part.LineSegment(Vector(101, 172.1, 0), Vector(101, 173.5, 0)),  # 10
    Part.LineSegment(Vector(101, 173.5, 0), Vector(104.2, 173.5, 0)),  # 11
], False)
sketch12.addConstraint([
    Sketcher.Constraint("Coincident", 0, 2, 1, 1),
    Sketcher.Constraint("Coincident", 1, 2, 2, 1),
    Sketcher.Constraint("Coincident", 2, 2, 3, 1),
    Sketcher.Constraint("Coincident", 3, 2, 4, 1),
    Sketcher.Constraint("Coincident", 4, 2, 5, 1),
    Sketcher.Constraint("Coincident", 5, 2, 6, 1),
    Sketcher.Constraint("Coincident", 6, 2, 7, 1),
    Sketcher.Constraint("Coincident", 7, 2, 8, 1),
    Sketcher.Constraint("Coincident", 8, 2, 9, 1),
    Sketcher.Constraint("Coincident", 9, 2, 10, 1),
    Sketcher.Constraint("Coincident", 10, 2, 11, 1),
    Sketcher.Constraint("Coincident", 11, 2, 0, 1),
    Sketcher.Constraint("Vertical", 0),
    Sketcher.Constraint("Horizontal", 1),
    Sketcher.Constraint("Vertical", 2),
    Sketcher.Constraint("Horizontal", 3),
    Sketcher.Constraint("Vertical", 4),
    Sketcher.Constraint("Horizontal", 5),
    Sketcher.Constraint("Vertical", 6),
    Sketcher.Constraint("Horizontal", 7),
    Sketcher.Constraint("Vertical", 8),
    Sketcher.Constraint("Horizontal", 9),
    Sketcher.Constraint("Vertical", 10),
    Sketcher.Constraint("Horizontal", 11),
    Sketcher.Constraint("Horizontal", 3, 2, 6, 2),
    Sketcher.Constraint("Horizontal", 1, 2, 8, 2),
    Sketcher.Constraint("Vertical", 0, 2, 3, 2),
    Sketcher.Constraint("Vertical", 6, 2, 9, 2),
    Sketcher.Constraint("Equal", 0, 4),
    Sketcher.Constraint("DistanceX", 7, 2, 7, 1, Q("7 mm")),
    Sketcher.Constraint("DistanceX", 1, 1, 1, 2, Q("6.8 mm")),
    Sketcher.Constraint("DistanceX", 5, 2, 5, 1, Q("3.2 mm")),
    Sketcher.Constraint("DistanceY", 0, 2, 0, 1, Q("1.4 mm")),
    Sketcher.Constraint("DistanceY", 2, 2, 2, 1, Q("4.2 mm")),
    Sketcher.Constraint("DistanceX", -1, 1, 1, 2, Q("111 mm")),
    Sketcher.Constraint("DistanceY", -1, 1, 0, 2, Q("172.1 mm")),
])
pocket10 = body.newObject("PartDesign::Pocket", "Pocket009")
pocket10.Profile = sketch12
pocket10.Type = "ThroughAll"
pocket10.Reversed = True

# Sketch on XY plane
sketch13 = body.newObject("Sketcher::SketchObject", "Sketch012")
sketch13.AttachmentSupport = (doc.getObject("XY_Plane"), [""])
sketch13.MapMode = "FlatFace"
sketch13.AttachmentOffset = App.Placement(Vector(0, 0, 4), App.Rotation())
sketch13.addGeometry([
    Part.LineSegment(Vector(-65.4, 17, 0), Vector(-69.6, 17, 0)),  # 0
    Part.LineSegment(Vector(-69.6, 17, 0), Vector(-69.6, 9, 0)),  # 1
    Part.LineSegment(Vector(-69.6, 9, 0), Vector(-71, 9, 0)),  # 2
    Part.LineSegment(Vector(-71, 9, 0), Vector(-71, 5.8, 0)),  # 3
    Part.LineSegment(Vector(-71, 5.8, 0), Vector(-69.6, 5.8, 0)),  # 4
    Part.LineSegment(Vector(-69.6, 5.8, 0), Vector(-69.6, 0, 0)),  # 5
    Part.LineSegment(Vector(-69.6, 0, 0), Vector(-65.4, 0, 0)),  # 6
    Part.LineSegment(Vector(-65.4, 0, 0), Vector(-65.4, 5.8, 0)),  # 7
    Part.LineSegment(Vector(-65.4, 5.8, 0), Vector(-64, 5.8, 0)),  # 8
    Part.LineSegment(Vector(-64, 5.8, 0), Vector(-64, 9, 0)),  # 9
    Part.LineSegment(Vector(-64, 9, 0), Vector(-65.4, 9, 0)),  # 10
    Part.LineSegment(Vector(-65.4, 9, 0), Vector(-65.4, 17, 0)),  # 11
], False)
sketch13.addConstraint([
    Sketcher.Constraint("Coincident", 0, 2, 1, 1),
    Sketcher.Constraint("Coincident", 1, 2, 2, 1),
    Sketcher.Constraint("Coincident", 2, 2, 3, 1),
    Sketcher.Constraint("Coincident", 3, 2, 4, 1),
    Sketcher.Constraint("Coincident", 4, 2, 5, 1),
    Sketcher.Constraint("Coincident", 5, 2, 6, 1),
    Sketcher.Constraint("Coincident", 6, 2, 7, 1),
    Sketcher.Constraint("Coincident", 7, 2, 8, 1),
    Sketcher.Constraint("Coincident", 8, 2, 9, 1),
    Sketcher.Constraint("Coincident", 9, 2, 10, 1),
    Sketcher.Constraint("Coincident", 10, 2, 11, 1),
    Sketcher.Constraint("Coincident", 11, 2, 0, 1),
    Sketcher.Constraint("Horizontal", 0),
    Sketcher.Constraint("Vertical", 1),
    Sketcher.Constraint("Horizontal", 2),
    Sketcher.Constraint("Vertical", 3),
    Sketcher.Constraint("Horizontal", 4),
    Sketcher.Constraint("Vertical", 5),
    Sketcher.Constraint("Horizontal", 6),
    Sketcher.Constraint("Vertical", 7),
    Sketcher.Constraint("Horizontal", 8),
    Sketcher.Constraint("Vertical", 9),
    Sketcher.Constraint("Horizontal", 10),
    Sketcher.Constraint("Vertical", 11),
    Sketcher.Constraint("PointOnObject", 5, 2, -1),
    Sketcher.Constraint("Horizontal", 4, 2, 7, 2),
    Sketcher.Constraint("Horizontal", 2, 2, 9, 2),
    Sketcher.Constraint("Vertical", 1, 2, 4, 2),
    Sketcher.Constraint("Vertical", 7, 2, 10, 2),
    Sketcher.Constraint("Equal", 4, 8),
    Sketcher.Constraint("DistanceY", 1, 2, 1, 1, Q("8 mm")),
    Sketcher.Constraint("DistanceX", 0, 2, 0, 1, Q("4.2 mm")),
    Sketcher.Constraint("DistanceX", 2, 2, 2, 1, Q("1.4 mm")),
    Sketcher.Constraint("DistanceY", 3, 2, 3, 1, Q("3.2 mm")),
    Sketcher.Constraint("DistanceY", 5, 2, 5, 1, Q("5.8 mm")),
    Sketcher.Constraint("DistanceX", 2, 2, -1, 1, Q("71 mm")),
])
pocket11 = body.newObject("PartDesign::Pocket", "Pocket010")
pocket11.Profile = sketch13
pocket11.Type = "ThroughAll"

# Sketch on XY plane
sketch14 = body.newObject("Sketcher::SketchObject", "Sketch013")
sketch14.AttachmentSupport = (doc.getObject("XY_Plane"), [""])
sketch14.MapMode = "FlatFace"
sketch14.AttachmentOffset = App.Placement(Vector(0, 0, 4), App.Rotation())
sketch14.addGeometry(Part.Circle(Vector(72.5, -82, 0), Vector(0, 0, 1), 2.1), False)
sketch14.addConstraint([
    Sketcher.Constraint("Diameter", 0, Q("4.2 mm")),
    Sketcher.Constraint("DistanceY", 0, 3, -1, 1, Q("82 mm")),
    Sketcher.Constraint("DistanceX", -1, 1, 0, 3, Q("72.5 mm")),
])
pocket12 = body.newObject("PartDesign::Pocket", "Pocket011")
pocket12.Profile = sketch14
pocket12.Type = "ThroughAll"

doc.recompute()
